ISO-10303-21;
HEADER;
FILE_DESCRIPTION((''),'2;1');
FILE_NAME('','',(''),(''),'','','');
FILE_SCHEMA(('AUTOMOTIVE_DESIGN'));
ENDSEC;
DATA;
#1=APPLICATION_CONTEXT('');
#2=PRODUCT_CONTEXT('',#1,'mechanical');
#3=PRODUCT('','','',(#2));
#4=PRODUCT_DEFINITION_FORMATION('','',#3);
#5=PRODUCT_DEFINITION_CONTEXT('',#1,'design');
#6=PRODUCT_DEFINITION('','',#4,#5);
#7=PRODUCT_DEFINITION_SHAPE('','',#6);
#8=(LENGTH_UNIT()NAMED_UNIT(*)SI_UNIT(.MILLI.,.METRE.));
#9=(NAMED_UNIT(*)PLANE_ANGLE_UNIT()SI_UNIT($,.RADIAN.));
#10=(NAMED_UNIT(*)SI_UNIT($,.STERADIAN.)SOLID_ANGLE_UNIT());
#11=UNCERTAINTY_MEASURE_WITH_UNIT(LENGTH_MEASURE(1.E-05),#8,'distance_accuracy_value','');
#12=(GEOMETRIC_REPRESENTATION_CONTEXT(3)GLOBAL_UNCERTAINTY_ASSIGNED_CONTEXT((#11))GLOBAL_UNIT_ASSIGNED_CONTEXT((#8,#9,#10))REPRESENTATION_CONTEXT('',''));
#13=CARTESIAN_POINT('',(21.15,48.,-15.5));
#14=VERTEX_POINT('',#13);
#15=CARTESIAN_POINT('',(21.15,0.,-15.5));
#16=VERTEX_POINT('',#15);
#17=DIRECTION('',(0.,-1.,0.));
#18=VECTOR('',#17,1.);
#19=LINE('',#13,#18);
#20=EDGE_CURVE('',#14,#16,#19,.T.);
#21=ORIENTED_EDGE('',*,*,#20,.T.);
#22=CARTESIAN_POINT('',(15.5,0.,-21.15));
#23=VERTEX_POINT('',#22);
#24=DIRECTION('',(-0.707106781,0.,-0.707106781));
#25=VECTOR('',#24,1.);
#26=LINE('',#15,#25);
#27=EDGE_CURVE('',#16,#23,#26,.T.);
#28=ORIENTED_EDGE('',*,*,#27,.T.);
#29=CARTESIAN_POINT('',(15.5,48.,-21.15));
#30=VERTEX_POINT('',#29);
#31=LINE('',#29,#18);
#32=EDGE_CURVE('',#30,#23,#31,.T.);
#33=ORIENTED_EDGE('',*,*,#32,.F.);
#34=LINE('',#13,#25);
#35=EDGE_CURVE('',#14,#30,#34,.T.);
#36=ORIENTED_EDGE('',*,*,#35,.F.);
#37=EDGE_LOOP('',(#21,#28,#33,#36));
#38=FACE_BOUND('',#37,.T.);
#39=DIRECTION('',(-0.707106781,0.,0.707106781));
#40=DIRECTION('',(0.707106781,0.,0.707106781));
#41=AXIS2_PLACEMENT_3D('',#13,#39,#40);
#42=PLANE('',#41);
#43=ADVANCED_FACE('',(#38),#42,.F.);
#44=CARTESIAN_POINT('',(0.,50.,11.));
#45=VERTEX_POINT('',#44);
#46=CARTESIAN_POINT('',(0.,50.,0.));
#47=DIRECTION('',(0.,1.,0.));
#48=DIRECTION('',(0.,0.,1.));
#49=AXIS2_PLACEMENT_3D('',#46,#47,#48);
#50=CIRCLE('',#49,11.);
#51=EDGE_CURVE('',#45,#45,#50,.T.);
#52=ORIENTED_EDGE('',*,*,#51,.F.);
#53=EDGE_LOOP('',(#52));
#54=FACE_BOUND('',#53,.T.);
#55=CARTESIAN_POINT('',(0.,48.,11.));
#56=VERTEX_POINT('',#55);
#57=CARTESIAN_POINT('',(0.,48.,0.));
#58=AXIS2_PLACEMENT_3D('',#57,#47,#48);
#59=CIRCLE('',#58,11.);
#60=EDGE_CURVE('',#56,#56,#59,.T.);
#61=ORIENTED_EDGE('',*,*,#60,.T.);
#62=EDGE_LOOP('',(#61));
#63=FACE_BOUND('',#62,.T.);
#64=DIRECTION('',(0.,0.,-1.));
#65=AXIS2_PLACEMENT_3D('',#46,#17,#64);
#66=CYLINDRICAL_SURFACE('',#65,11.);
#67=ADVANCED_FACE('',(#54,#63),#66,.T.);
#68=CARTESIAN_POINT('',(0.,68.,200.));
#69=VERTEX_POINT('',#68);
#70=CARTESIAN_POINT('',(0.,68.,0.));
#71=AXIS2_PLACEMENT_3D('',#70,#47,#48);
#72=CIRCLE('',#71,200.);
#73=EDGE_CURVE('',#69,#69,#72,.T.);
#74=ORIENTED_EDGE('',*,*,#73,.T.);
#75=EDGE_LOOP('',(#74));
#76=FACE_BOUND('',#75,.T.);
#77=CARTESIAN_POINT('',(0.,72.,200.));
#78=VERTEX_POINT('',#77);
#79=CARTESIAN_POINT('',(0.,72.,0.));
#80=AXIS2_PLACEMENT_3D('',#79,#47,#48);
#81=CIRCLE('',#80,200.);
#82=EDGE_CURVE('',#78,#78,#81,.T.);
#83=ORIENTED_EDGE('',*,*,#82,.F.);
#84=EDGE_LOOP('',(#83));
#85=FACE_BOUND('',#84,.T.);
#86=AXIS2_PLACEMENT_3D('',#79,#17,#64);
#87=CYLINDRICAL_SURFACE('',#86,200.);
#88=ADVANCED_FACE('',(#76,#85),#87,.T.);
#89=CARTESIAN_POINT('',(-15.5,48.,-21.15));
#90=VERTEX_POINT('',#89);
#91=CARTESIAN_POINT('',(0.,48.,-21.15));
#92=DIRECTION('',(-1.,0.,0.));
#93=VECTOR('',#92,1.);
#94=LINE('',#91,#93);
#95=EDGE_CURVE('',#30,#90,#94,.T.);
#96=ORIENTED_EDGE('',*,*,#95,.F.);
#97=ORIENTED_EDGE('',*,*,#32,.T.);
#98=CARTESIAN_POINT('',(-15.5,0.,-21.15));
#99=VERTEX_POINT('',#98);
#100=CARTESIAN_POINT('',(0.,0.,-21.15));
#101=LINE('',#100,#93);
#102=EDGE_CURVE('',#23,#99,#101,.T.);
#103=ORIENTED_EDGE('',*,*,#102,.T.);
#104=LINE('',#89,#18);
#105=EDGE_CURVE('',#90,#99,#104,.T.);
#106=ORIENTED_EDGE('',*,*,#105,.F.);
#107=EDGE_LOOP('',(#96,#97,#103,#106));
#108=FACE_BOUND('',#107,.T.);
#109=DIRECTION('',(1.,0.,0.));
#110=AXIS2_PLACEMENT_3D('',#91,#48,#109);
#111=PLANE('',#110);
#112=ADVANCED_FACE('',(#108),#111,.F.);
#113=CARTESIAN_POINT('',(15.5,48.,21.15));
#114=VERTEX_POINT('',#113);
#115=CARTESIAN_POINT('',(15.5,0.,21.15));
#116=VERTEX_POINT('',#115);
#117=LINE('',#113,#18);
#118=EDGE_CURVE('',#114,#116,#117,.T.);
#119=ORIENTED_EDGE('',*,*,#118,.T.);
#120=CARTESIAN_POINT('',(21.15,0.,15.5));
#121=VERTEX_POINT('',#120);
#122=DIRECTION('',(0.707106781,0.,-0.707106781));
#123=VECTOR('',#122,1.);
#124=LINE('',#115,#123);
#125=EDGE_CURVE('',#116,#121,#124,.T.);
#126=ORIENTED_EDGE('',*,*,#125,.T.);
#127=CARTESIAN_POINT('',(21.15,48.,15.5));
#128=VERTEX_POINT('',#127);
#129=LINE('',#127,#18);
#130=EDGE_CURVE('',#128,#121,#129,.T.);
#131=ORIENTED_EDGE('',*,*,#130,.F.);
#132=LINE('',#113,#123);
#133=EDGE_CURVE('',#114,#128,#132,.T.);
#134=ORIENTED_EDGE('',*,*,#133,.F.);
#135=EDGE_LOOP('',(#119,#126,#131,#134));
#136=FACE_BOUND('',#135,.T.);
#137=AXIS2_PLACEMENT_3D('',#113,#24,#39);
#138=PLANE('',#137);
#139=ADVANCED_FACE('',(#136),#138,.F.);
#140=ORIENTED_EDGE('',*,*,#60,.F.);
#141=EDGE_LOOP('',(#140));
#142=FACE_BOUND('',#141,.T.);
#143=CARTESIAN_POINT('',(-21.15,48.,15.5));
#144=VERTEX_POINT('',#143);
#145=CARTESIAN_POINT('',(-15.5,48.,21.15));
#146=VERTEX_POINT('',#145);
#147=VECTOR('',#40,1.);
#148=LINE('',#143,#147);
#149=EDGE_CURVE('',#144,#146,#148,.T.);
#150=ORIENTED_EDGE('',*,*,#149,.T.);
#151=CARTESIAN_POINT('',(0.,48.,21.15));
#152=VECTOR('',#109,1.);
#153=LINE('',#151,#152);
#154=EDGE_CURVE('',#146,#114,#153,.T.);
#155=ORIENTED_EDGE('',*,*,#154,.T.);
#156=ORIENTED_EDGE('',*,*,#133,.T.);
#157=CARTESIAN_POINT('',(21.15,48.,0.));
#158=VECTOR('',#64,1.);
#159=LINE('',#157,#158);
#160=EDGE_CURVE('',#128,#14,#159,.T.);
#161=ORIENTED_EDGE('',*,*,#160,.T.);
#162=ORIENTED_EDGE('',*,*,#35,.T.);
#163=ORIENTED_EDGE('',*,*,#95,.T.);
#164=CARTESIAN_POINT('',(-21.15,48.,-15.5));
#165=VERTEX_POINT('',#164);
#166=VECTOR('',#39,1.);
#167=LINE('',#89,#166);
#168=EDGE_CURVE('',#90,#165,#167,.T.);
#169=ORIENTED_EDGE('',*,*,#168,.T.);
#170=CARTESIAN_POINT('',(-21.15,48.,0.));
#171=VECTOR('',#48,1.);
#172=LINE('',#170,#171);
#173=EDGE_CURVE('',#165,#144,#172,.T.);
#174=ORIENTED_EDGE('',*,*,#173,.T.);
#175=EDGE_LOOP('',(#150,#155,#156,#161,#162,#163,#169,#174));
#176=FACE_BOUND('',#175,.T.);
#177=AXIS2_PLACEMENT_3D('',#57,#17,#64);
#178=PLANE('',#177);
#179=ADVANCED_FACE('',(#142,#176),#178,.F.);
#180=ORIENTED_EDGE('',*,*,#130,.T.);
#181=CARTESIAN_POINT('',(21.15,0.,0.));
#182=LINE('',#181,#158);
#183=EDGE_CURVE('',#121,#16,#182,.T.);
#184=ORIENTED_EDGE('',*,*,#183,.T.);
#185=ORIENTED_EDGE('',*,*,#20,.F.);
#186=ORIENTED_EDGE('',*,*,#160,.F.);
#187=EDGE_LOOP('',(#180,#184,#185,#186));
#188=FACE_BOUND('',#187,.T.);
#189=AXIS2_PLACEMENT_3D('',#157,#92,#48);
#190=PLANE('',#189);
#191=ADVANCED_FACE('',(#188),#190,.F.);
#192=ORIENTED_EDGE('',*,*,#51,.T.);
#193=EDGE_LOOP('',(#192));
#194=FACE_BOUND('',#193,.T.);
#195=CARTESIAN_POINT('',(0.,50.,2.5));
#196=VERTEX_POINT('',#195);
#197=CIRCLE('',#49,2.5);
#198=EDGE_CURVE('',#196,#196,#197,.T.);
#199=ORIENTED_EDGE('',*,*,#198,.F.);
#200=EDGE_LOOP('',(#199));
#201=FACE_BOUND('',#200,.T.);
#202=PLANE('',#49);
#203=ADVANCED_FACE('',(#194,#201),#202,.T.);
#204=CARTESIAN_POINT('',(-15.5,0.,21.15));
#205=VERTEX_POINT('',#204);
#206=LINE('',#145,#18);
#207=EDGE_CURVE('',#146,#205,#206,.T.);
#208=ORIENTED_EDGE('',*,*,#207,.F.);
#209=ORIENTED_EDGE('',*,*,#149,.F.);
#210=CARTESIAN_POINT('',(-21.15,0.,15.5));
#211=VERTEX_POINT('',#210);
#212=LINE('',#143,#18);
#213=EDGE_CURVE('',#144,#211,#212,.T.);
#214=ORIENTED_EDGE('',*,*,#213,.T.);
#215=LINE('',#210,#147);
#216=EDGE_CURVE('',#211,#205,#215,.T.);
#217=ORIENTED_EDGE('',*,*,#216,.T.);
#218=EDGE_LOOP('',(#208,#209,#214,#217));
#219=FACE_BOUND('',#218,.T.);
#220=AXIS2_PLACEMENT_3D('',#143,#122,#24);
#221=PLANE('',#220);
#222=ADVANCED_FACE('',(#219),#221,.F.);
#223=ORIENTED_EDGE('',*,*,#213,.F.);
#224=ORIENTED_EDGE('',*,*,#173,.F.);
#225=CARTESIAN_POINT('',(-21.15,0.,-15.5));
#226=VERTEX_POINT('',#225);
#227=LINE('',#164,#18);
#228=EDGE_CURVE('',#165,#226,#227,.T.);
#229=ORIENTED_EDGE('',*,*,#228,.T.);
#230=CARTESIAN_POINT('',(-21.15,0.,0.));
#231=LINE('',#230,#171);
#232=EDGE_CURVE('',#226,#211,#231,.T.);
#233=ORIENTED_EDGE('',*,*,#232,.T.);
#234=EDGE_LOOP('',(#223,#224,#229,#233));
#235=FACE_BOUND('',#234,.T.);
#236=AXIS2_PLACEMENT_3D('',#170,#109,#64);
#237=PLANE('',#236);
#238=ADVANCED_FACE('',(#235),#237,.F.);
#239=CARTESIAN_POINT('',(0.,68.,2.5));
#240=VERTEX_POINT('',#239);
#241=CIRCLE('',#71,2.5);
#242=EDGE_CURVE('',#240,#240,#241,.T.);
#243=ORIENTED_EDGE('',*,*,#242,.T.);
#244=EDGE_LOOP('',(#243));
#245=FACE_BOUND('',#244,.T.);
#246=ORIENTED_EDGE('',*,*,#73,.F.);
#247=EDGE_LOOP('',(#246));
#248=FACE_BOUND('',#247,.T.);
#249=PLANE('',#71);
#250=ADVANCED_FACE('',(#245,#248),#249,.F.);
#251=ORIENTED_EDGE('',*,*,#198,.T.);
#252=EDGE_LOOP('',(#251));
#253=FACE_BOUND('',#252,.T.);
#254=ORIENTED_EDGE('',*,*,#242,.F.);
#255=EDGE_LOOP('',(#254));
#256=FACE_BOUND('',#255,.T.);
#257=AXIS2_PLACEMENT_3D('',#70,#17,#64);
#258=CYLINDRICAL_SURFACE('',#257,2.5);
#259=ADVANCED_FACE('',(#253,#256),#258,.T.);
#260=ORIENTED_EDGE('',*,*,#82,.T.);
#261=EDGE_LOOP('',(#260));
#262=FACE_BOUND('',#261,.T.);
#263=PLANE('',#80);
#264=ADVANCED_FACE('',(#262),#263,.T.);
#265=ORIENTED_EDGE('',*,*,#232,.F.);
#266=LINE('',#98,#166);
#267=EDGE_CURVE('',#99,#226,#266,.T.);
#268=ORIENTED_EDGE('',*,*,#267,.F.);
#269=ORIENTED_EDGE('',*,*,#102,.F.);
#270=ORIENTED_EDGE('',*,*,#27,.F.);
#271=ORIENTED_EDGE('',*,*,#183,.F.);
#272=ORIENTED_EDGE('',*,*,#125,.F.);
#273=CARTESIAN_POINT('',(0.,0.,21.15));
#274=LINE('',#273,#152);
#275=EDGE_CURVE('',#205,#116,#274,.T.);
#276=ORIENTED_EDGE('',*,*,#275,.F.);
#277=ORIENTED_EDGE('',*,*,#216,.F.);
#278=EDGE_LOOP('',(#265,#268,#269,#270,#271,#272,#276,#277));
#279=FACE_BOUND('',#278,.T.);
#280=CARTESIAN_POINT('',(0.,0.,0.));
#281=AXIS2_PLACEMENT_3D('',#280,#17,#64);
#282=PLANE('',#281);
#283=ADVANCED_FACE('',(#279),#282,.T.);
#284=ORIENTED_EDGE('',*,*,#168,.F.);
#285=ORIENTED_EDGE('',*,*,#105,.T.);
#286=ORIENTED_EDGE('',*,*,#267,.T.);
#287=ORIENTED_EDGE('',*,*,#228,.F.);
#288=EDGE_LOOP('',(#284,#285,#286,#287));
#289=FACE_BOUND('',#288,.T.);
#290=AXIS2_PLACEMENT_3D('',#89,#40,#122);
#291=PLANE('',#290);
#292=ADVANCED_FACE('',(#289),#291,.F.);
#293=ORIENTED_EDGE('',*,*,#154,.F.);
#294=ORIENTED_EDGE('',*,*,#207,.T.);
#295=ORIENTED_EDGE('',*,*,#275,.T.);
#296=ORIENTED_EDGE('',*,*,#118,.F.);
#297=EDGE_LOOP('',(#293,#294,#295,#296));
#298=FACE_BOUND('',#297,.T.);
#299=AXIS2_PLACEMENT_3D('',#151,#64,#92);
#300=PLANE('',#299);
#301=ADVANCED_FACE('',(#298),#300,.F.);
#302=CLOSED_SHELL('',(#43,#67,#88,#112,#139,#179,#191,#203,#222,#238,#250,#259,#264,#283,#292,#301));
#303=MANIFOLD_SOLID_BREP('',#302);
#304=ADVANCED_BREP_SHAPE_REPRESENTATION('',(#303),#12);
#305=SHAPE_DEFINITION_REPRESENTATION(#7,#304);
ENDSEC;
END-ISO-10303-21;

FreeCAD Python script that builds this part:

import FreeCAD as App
import Part
import Sketcher

V = App.Vector
Q = App.Units.Quantity

doc = App.newDocument("Part")
body = doc.addObject("PartDesign::Body", "Body")

# Sketch on XZ plane
sketch1 = doc.addObject("Sketcher::SketchObject", "Sketch")
body.addObject(sketch1)
sketch1.AttachmentSupport = (doc.XZ_Plane, [""])
sketch1.MapMode = "FlatFace"
sketch1.addGeometry([
    Part.LineSegment(V(-21, -16, 0), V(-21, 16, 0)),  # 0
    Part.LineSegment(V(-21, 16, 0), V(-16, 21, 0)),  # 1
    Part.LineSegment(V(-16, 21, 0), V(16, 21, 0)),  # 2
    Part.LineSegment(V(16, 21, 0), V(21, 16, 0)),  # 3
    Part.LineSegment(V(21, 16, 0), V(21, -16, 0)),  # 4
    Part.LineSegment(V(21, -16, 0), V(16, -21, 0)),  # 5
    Part.LineSegment(V(16, -21, 0), V(-16, -21, 0)),  # 6
    Part.LineSegment(V(-16, -21, 0), V(-21, -16, 0)),  # 7
], False)
sketch1.addConstraint([
    Sketcher.Constraint("Coincident", 0, 2, 1, 1),
    Sketcher.Constraint("Coincident", 1, 2, 2, 1),
    Sketcher.Constraint("Coincident", 2, 2, 3, 1),
    Sketcher.Constraint("Coincident", 3, 2, 4, 1),
    Sketcher.Constraint("Coincident", 4, 2, 5, 1),
    Sketcher.Constraint("Coincident", 5, 2, 6, 1),
    Sketcher.Constraint("Coincident", 6, 2, 7, 1),
    Sketcher.Constraint("Coincident", 7, 2, 0, 1),
    Sketcher.Constraint("Vertical", 0),
    Sketcher.Constraint("Horizontal", 2),
    Sketcher.Constraint("Vertical", 4),
    Sketcher.Constraint("Horizontal", 6),
    Sketcher.Constraint("Symmetric", 0, 2, 4, 2, -1, 1),
    Sketcher.Constraint("Symmetric", 1, 2, 5, 2, -1, 1),
    Sketcher.Constraint("Perpendicular", 1, 3),
    Sketcher.Constraint("Perpendicular", 5, 7),
    Sketcher.Constraint("Horizontal", 0, 2, 3, 2),
    Sketcher.Constraint("Horizontal", 4, 2, 7, 2),
    Sketcher.Constraint("Vertical", 2, 2, 5, 2),
    Sketcher.Constraint("Equal", 6, 0),
    Sketcher.Constraint("DistanceX", 2, 1, 2, 2, Q("31 mm")),
    Sketcher.Constraint("DistanceX", 0, 2, 3, 2, Q("42.3 mm")),
])
pad1 = doc.addObject("PartDesign::Pad", "Pad")
body.addObject(pad1)
pad1.Profile = sketch1
pad1.Length = 48
pad1.Reversed = True

# Sketch on XZ plane
sketch2 = doc.addObject("Sketcher::SketchObject", "Sketch001")
body.addObject(sketch2)
sketch2.AttachmentSupport = (doc.XZ_Plane, [""])
sketch2.MapMode = "FlatFace"
sketch2.AttachmentOffset = App.Placement(V(0, 0, -48), App.Rotation())
sketch2.addGeometry(Part.Circle(V(0, 0, 0), V(0, 0, 1), 11), False)
sketch2.addConstraint([
    Sketcher.Constraint("Coincident", 0, 3, -1, 1),
    Sketcher.Constraint("Diameter", 0, Q("22 mm")),
])
pad2 = doc.addObject("PartDesign::Pad", "Pad001")
body.addObject(pad2)
pad2.Profile = sketch2
pad2.Length = 2
pad2.Reversed = True

# Sketch on XZ plane
sketch3 = doc.addObject("Sketcher::SketchObject", "Sketch002")
body.addObject(sketch3)
sketch3.AttachmentSupport = (doc.XZ_Plane, [""])
sketch3.MapMode = "FlatFace"
sketch3.AttachmentOffset = App.Placement(V(0, 0, -50), App.Rotation())
sketch3.addGeometry(Part.Circle(V(0, 0, 0), V(0, 0, 1), 2.5), False)
sketch3.addConstraint([
    Sketcher.Constraint("Coincident", 0, 3, -1, 1),
    Sketcher.Constraint("Diameter", 0, Q("5 mm")),
])
pad3 = doc.addObject("PartDesign::Pad", "Pad002")
body.addObject(pad3)
pad3.Profile = sketch3
pad3.Length = 18
pad3.Reversed = True

# Sketch on XZ plane
sketch4 = doc.addObject("Sketcher::SketchObject", "Sketch003")
body.addObject(sketch4)
sketch4.AttachmentSupport = (doc.XZ_Plane, [""])
sketch4.MapMode = "FlatFace"
sketch4.AttachmentOffset = App.Placement(V(0, 0, -68), App.Rotation())
sketch4.addGeometry(Part.Circle(V(0, 0, 0), V(0, 0, 1), 200), False)
sketch4.addConstraint([
    Sketcher.Constraint("Coincident", 0, 3, -1, 1),
    Sketcher.Constraint("Diameter", 0, Q("400 mm")),
])
pad4 = doc.addObject("PartDesign::Pad", "Pad003")
body.addObject(pad4)
pad4.Profile = sketch4
pad4.Length = 4
pad4.Reversed = True

doc.recompute()
